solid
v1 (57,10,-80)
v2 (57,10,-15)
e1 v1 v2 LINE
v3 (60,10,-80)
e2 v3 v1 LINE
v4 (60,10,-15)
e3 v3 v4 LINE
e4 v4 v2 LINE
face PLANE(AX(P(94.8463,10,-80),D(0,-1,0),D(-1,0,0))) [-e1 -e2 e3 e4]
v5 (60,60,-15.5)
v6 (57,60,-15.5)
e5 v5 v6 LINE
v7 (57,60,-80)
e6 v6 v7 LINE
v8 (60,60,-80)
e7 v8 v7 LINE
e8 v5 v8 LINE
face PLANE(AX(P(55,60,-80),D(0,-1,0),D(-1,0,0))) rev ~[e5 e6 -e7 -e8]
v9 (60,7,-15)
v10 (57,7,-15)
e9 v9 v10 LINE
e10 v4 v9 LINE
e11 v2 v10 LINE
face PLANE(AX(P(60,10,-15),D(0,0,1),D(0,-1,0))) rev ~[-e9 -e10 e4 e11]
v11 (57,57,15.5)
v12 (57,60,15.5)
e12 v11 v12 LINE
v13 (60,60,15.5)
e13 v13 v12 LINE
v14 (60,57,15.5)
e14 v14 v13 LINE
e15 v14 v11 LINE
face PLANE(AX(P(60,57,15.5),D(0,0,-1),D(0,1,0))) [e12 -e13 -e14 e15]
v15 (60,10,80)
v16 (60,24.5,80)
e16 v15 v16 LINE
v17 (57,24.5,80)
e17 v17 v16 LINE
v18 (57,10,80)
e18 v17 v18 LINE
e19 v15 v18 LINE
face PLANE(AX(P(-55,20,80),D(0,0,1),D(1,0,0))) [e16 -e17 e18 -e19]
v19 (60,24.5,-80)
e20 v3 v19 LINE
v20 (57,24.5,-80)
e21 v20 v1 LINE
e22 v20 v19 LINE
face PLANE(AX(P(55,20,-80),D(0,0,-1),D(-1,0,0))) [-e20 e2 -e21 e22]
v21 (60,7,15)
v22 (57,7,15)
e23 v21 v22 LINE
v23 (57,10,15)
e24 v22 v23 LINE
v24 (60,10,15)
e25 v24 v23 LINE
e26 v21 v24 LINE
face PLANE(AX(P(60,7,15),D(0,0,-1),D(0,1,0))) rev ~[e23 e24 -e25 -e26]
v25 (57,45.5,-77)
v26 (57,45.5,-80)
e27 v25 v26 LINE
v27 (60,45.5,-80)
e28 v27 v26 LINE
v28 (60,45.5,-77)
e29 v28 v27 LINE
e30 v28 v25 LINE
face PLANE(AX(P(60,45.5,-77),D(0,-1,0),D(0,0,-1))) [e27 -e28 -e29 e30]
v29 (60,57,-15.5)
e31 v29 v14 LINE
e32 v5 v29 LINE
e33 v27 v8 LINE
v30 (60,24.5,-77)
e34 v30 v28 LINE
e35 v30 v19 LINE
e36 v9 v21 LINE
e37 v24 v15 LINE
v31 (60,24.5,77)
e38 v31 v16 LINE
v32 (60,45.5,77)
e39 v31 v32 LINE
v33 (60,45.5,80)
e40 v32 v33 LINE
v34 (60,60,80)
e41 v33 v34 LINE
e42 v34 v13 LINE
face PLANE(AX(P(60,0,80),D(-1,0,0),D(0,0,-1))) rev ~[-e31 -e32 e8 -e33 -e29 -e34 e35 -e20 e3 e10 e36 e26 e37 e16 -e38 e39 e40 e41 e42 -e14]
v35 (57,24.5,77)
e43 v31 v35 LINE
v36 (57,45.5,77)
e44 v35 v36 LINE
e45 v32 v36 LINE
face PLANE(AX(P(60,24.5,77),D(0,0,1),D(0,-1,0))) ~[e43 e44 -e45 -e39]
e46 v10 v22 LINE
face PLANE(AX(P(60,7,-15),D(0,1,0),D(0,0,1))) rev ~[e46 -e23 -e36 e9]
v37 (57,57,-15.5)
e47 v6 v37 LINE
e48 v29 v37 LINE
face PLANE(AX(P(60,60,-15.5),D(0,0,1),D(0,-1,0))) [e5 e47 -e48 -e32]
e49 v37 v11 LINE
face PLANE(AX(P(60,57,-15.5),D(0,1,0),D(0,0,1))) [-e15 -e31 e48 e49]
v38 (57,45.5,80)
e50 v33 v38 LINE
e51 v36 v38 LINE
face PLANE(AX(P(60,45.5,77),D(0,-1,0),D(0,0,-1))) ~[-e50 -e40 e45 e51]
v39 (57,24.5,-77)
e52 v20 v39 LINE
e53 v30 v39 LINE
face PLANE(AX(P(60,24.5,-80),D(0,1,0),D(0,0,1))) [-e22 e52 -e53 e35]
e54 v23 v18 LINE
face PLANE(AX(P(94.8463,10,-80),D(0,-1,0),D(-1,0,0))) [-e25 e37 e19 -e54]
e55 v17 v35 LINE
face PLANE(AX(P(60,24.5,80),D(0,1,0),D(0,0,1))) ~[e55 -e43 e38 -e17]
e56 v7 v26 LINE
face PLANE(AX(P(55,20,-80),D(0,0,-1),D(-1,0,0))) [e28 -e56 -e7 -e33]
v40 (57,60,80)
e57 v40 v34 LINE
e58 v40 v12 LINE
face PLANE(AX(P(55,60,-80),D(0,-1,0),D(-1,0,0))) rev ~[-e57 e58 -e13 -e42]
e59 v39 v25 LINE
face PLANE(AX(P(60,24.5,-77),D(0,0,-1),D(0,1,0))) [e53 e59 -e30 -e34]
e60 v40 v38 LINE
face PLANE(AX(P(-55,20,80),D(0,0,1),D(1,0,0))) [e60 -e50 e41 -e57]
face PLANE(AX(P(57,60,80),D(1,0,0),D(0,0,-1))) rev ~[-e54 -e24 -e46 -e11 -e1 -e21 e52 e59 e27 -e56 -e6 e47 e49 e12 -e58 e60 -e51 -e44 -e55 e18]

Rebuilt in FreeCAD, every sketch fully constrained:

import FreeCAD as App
import Part
import Sketcher
Q = App.Units.Quantity

doc = App.newDocument("Part")
body = doc.addObject("PartDesign::Body", "Body")

sketch1 = doc.addObject("Sketcher::SketchObject", "Sketch")
body.addObject(sketch1)
sketch1.AttachmentSupport = (doc.XZ_Plane, [""])
sketch1.MapMode = "FlatFace"
sketch1.addGeometry([
    Part.LineSegment(App.Vector(-60, -80, 0), App.Vector(-60, 80, 0)),
    Part.LineSegment(App.Vector(-60, 80, 0), App.Vector(60, 80, 0)),
    Part.LineSegment(App.Vector(60, 80, 0), App.Vector(60, -80, 0)),
    Part.LineSegment(App.Vector(60, -80, 0), App.Vector(-60, -80, 0)),
], False)
sketch1.addConstraint([
    Sketcher.Constraint("Coincident", 0, 2, 1, 1),
    Sketcher.Constraint("Coincident", 1, 2, 2, 1),
    Sketcher.Constraint("Coincident", 2, 2, 3, 1),
    Sketcher.Constraint("Coincident", 3, 2, 0, 1),
    Sketcher.Constraint("Vertical", 0),
    Sketcher.Constraint("Horizontal", 1),
    Sketcher.Constraint("Vertical", 2),
    Sketcher.Constraint("Horizontal", 3),
    Sketcher.Constraint("Symmetric", 0, 2, 2, 2, -1, 1),
    Sketcher.Constraint("DistanceX", 1, 1, 1, 2, Q("120 mm")),
    Sketcher.Constraint("DistanceY", 0, 1, 0, 2, Q("160 mm")),
])
pad1 = doc.addObject("PartDesign::Pad", "Pad")
body.addObject(pad1)
pad1.Profile = sketch1
pad1.Length = 60
pad1.Reversed = True

sketch2 = doc.addObject("Sketcher::SketchObject", "Sketch001")
body.addObject(sketch2)
sketch2.AttachmentSupport = (doc.XZ_Plane, [""])
sketch2.MapMode = "FlatFace"
sketch2.AttachmentOffset = App.Placement(App.Vector(0, 0, -60), App.Rotation())
sketch2.addGeometry([
    Part.LineSegment(App.Vector(55, 90, 0), App.Vector(55, -80, 0)),
    Part.LineSegment(App.Vector(55, -80, 0), App.Vector(-55, -80, 0)),
    Part.LineSegment(App.Vector(-55, -80, 0), App.Vector(-55, 90, 0)),
    Part.LineSegment(App.Vector(-55, 90, 0), App.Vector(55, 90, 0)),
], False)
sketch2.addConstraint([
    Sketcher.Constraint("Coincident", 0, 2, 1, 1),
    Sketcher.Constraint("Coincident", 1, 2, 2, 1),
    Sketcher.Constraint("Coincident", 2, 2, 3, 1),
    Sketcher.Constraint("Coincident", 3, 2, 0, 1),
    Sketcher.Constraint("Vertical", 0),
    Sketcher.Constraint("Horizontal", 1),
    Sketcher.Constraint("Vertical", 2),
    Sketcher.Constraint("Horizontal", 3),
    Sketcher.Constraint("DistanceX", 1, 2, 1, 1, Q("110 mm")),
    Sketcher.Constraint("DistanceX", -1, 1, 0, 2, Q("55 mm")),
    Sketcher.Constraint("DistanceY", 0, 2, -1, 1, Q("80 mm")),
    Sketcher.Constraint("DistanceY", 0, 2, 0, 1, Q("169.711 mm")),
])
pocket1 = doc.addObject("PartDesign::Pocket", "Pocket")
body.addObject(pocket1)
pocket1.Profile = sketch2
pocket1.Length = 40
pocket1.Reversed = True

sketch3 = doc.addObject("Sketcher::SketchObject", "Sketch002")
body.addObject(sketch3)
sketch3.AttachmentSupport = (doc.XY_Plane, [""])
sketch3.MapMode = "FlatFace"
sketch3.AttachmentOffset = App.Placement(App.Vector(0, 0, -80), App.Rotation())
sketch3.addGeometry([
    Part.LineSegment(App.Vector(-96, 10, 0), App.Vector(95, 10, 0)),
    Part.LineSegment(App.Vector(95, 10, 0), App.Vector(95, -37, 0)),
    Part.LineSegment(App.Vector(95, -37, 0), App.Vector(-96, -37, 0)),
    Part.LineSegment(App.Vector(-96, -37, 0), App.Vector(-96, 10, 0)),
], False)
sketch3.addConstraint([
    Sketcher.Constraint("Coincident", 0, 2, 1, 1),
    Sketcher.Constraint("Coincident", 1, 2, 2, 1),
    Sketcher.Constraint("Coincident", 2, 2, 3, 1),
    Sketcher.Constraint("Coincident", 3, 2, 0, 1),
    Sketcher.Constraint("Horizontal", 0),
    Sketcher.Constraint("Vertical", 1),
    Sketcher.Constraint("Horizontal", 2),
    Sketcher.Constraint("Vertical", 3),
    Sketcher.Constraint("DistanceY", -1, 1, 0, 2, Q("10 mm")),
    Sketcher.Constraint("DistanceX", 0, 1, 0, 2, Q("191.1097 mm")),
    Sketcher.Constraint("DistanceY", 1, 2, 1, 1, Q("46.9465 mm")),
    Sketcher.Constraint("DistanceX", -1, 1, 0, 2, Q("94.8463 mm")),
])
pocket2 = doc.addObject("PartDesign::Pocket", "Pocket001")
body.addObject(pocket2)
pocket2.Profile = sketch3
pocket2.Type = "ThroughAll"
pocket2.Reversed = True

sketch4 = doc.addObject("Sketcher::SketchObject", "Sketch003")
body.addObject(sketch4)
sketch4.AttachmentSupport = (doc.XY_Plane, [""])
sketch4.MapMode = "FlatFace"
sketch4.AttachmentOffset = App.Placement(App.Vector(0, 0, 80), App.Rotation())
sketch4.addGeometry([
    Part.LineSegment(App.Vector(55, 60, 0), App.Vector(-55, 60, 0)),
    Part.LineSegment(App.Vector(-55, 60, 0), App.Vector(-55, 20, 0)),
    Part.LineSegment(App.Vector(-55, 20, 0), App.Vector(55, 20, 0)),
    Part.LineSegment(App.Vector(55, 20, 0), App.Vector(55, 60, 0)),
], False)
sketch4.addConstraint([
    Sketcher.Constraint("Coincident", 0, 2, 1, 1),
    Sketcher.Constraint("Coincident", 1, 2, 2, 1),
    Sketcher.Constraint("Coincident", 2, 2, 3, 1),
    Sketcher.Constraint("Coincident", 3, 2, 0, 1),
    Sketcher.Constraint("Horizontal", 0),
    Sketcher.Constraint("Vertical", 1),
    Sketcher.Constraint("Horizontal", 2),
    Sketcher.Constraint("Vertical", 3),
    Sketcher.Constraint("DistanceX", 0, 2, 0, 1, Q("110 mm")),
    Sketcher.Constraint("DistanceY", 1, 2, 1, 1, Q("40 mm")),
    Sketcher.Constraint("DistanceX", 0, 2, -1, 1, Q("55 mm")),
    Sketcher.Constraint("DistanceY", -1, 1, 0, 2, Q("60 mm")),
])
pad2 = doc.addObject("PartDesign::Pad", "Pad001")
body.addObject(pad2)
pad2.Profile = sketch4
pad2.Length = 5
pad2.Reversed = True

sketch5 = doc.addObject("Sketcher::SketchObject", "Sketch004")
body.addObject(sketch5)
sketch5.AttachmentSupport = (doc.XY_Plane, [""])
sketch5.MapMode = "FlatFace"
sketch5.AttachmentOffset = App.Placement(App.Vector(0, 0, -80), App.Rotation())
sketch5.addGeometry([
    Part.LineSegment(App.Vector(55, 60, 0), App.Vector(55, 20, 0)),
    Part.LineSegment(App.Vector(55, 20, 0), App.Vector(-55, 20, 0)),
    Part.LineSegment(App.Vector(-55, 20, 0), App.Vector(-55, 60, 0)),
    Part.LineSegment(App.Vector(-55, 60, 0), App.Vector(55, 60, 0)),
], False)
sketch5.addConstraint([
    Sketcher.Constraint("Coincident", 0, 2, 1, 1),
    Sketcher.Constraint("Coincident", 1, 2, 2, 1),
    Sketcher.Constraint("Coincident", 2, 2, 3, 1),
    Sketcher.Constraint("Coincident", 3, 2, 0, 1),
    Sketcher.Constraint("Vertical", 0),
    Sketcher.Constraint("Horizontal", 1),
    Sketcher.Constraint("Vertical", 2),
    Sketcher.Constraint("Horizontal", 3),
    Sketcher.Constraint("DistanceX", 1, 2, 1, 1, Q("110 mm")),
    Sketcher.Constraint("DistanceY", 0, 2, 0, 1, Q("40 mm")),
    Sketcher.Constraint("DistanceX", -1, 1, 0, 2, Q("55 mm")),
    Sketcher.Constraint("DistanceY", -1, 1, 0, 2, Q("20 mm")),
])
pad3 = doc.addObject("PartDesign::Pad", "Pad002")
body.addObject(pad3)
pad3.Profile = sketch5
pad3.Length = 5

sketch6 = doc.addObject("Sketcher::SketchObject", "Sketch005")
body.addObject(sketch6)
sketch6.AttachmentSupport = (doc.XZ_Plane, [""])
sketch6.MapMode = "FlatFace"
sketch6.AttachmentOffset = App.Placement(App.Vector(0, 0, -20), App.Rotation())
sketch6.addGeometry([
    Part.Circle(App.Vector(7, -27, 0), App.Vector(0, 0, 1), 1.6),
    Part.Circle(App.Vector(45, -27, 0), App.Vector(0, 0, 1), 1.6),
    Part.Circle(App.Vector(7, -65, 0), App.Vector(0, 0, 1), 1.6),
    Part.Circle(App.Vector(45, -65, 0), App.Vector(0, 0, 1), 1.6),
], False)
sketch6.addConstraint([
    Sketcher.Constraint("Equal", 0, 1),
    Sketcher.Constraint("Equal", 1, 2),
    Sketcher.Constraint("Equal", 2, 3),
    Sketcher.Constraint("Horizontal", 0, 3, 1, 3),
    Sketcher.Constraint("Horizontal", 2, 3, 3, 3),
    Sketcher.Constraint("Vertical", 0, 3, 2, 3),
    Sketcher.Constraint("Vertical", 1, 3, 3, 3),
    Sketcher.Constraint("Diameter", 0, Q("3.2 mm")),
    Sketcher.Constraint("DistanceX", 0, 3, 1, 3, Q("38 mm")),
    Sketcher.Constraint("DistanceY", 2, 3, 0, 3, Q("38 mm")),
    Sketcher.Constraint("DistanceX", -1, 1, 0, 3, Q("7 mm")),
    Sketcher.Constraint("DistanceY", 0, 3, -1, 1, Q("27 mm")),
])
pocket3 = doc.addObject("PartDesign::Pocket", "Pocket002")
body.addObject(pocket3)
pocket3.Profile = sketch6
pocket3.Type = "ThroughAll"
pocket3.Reversed = True

sketch7 = doc.addObject("Sketcher::SketchObject", "Sketch006")
body.addObject(sketch7)
sketch7.AttachmentSupport = (doc.XY_Plane, [""])
sketch7.MapMode = "FlatFace"
sketch7.AttachmentOffset = App.Placement(App.Vector(0, 0, -80), App.Rotation())
sketch7.addGeometry([
    Part.Circle(App.Vector(14, 35, 0), App.Vector(0, 0, 1), 8),
    Part.Circle(App.Vector(-14, 35, 0), App.Vector(0, 0, 1), 8),
], False)
sketch7.addConstraint([
    Sketcher.Constraint("Equal", 0, 1),
    Sketcher.Constraint("Symmetric", 0, 3, 1, 3, -2),
    Sketcher.Constraint("Diameter", 0, Q("17 mm")),
    Sketcher.Constraint("DistanceX", 1, 3, 0, 3, Q("27 mm")),
    Sketcher.Constraint("DistanceY", -1, 1, 0, 3, Q("35 mm")),
])
pocket4 = doc.addObject("PartDesign::Pocket", "Pocket003")
body.addObject(pocket4)
pocket4.Profile = sketch7
pocket4.Type = "ThroughAll"
pocket4.Reversed = True

sketch8 = doc.addObject("Sketcher::SketchObject", "Sketch007")
body.addObject(sketch8)
sketch8.AttachmentSupport = (doc.XZ_Plane, [""])
sketch8.MapMode = "FlatFace"
sketch8.AttachmentOffset = App.Placement(App.Vector(0, 0, -20), App.Rotation())
sketch8.addGeometry(Part.Circle(App.Vector(5, -8, 0), App.Vector(0, 0, 1), 8), False)
sketch8.addConstraint([
    Sketcher.Constraint("Diameter", 0, Q("15 mm")),
    Sketcher.Constraint("DistanceX", -1, 1, 0, 3, Q("5.4243 mm")),
    Sketcher.Constraint("DistanceY", 0, 3, -1, 1, Q("8.1678 mm")),
])
pocket5 = doc.addObject("PartDesign::Pocket", "Pocket004")
body.addObject(pocket5)
pocket5.Profile = sketch8
pocket5.Type = "ThroughAll"
pocket5.Reversed = True

sketch9 = doc.addObject("Sketcher::SketchObject", "Sketch008")
body.addObject(sketch9)
sketch9.AttachmentSupport = (doc.XZ_Plane, [""])
sketch9.MapMode = "FlatFace"
sketch9.AttachmentOffset = App.Placement(App.Vector(0, 0, -20), App.Rotation())
sketch9.addGeometry([
    Part.Circle(App.Vector(4.7, 62.5, 0), App.Vector(0, 0, 1), 1.6),
    Part.Circle(App.Vector(6, 14.2, 0), App.Vector(0, 0, 1), 1.6),
    Part.Circle(App.Vector(-46, 47.2, 0), App.Vector(0, 0, 1), 1.6),
    Part.Circle(App.Vector(-46, 19.2, 0), App.Vector(0, 0, 1), 1.6),
], False)
sketch9.addConstraint([
    Sketcher.Constraint("Equal", 0, 1),
    Sketcher.Constraint("Equal", 1, 2),
    Sketcher.Constraint("Equal", 2, 3),
    Sketcher.Constraint("Vertical", 2, 3, 3, 3),
    Sketcher.Constraint("Diameter", 0, Q("3.2 mm")),
    Sketcher.Constraint("DistanceX", -1, 1, 0, 3, Q("4.7 mm")),
    Sketcher.Constraint("DistanceY", 1, 3, 0, 3, Q("48.3 mm")),
    Sketcher.Constraint("DistanceY", -1, 1, 0, 3, Q("62.45 mm")),
    Sketcher.Constraint("DistanceX", -1, 1, 1, 3, Q("6.03 mm")),
    Sketcher.Constraint("DistanceX", 2, 3, -1, 1, Q("46.05 mm")),
    Sketcher.Constraint("DistanceY", -1, 1, 2, 3, Q("47.16 mm")),
    Sketcher.Constraint("DistanceY", -1, 1, 3, 3, Q("19.23 mm")),
])
pocket6 = doc.addObject("PartDesign::Pocket", "Pocket005")
body.addObject(pocket6)
pocket6.Profile = sketch9
pocket6.Type = "ThroughAll"
pocket6.Reversed = True

sketch10 = doc.addObject("Sketcher::SketchObject", "Sketch009")
body.addObject(sketch10)
sketch10.AttachmentSupport = (doc.XZ_Plane, [""])
sketch10.MapMode = "FlatFace"
sketch10.AttachmentOffset = App.Placement(App.Vector(0, 0, -20), App.Rotation())
sketch10.addGeometry([
    Part.LineSegment(App.Vector(-55, -75, 0), App.Vector(-55, 75, 0)),
    Part.LineSegment(App.Vector(-55, 75, 0), App.Vector(55, 75, 0)),
    Part.LineSegment(App.Vector(55, 75, 0), App.Vector(55, -75, 0)),
    Part.LineSegment(App.Vector(55, -75, 0), App.Vector(-55, -75, 0)),
], False)
sketch10.addConstraint([
    Sketcher.Constraint("Coincident", 0, 2, 1, 1),
    Sketcher.Constraint("Coincident", 1, 2, 2, 1),
    Sketcher.Constraint("Coincident", 2, 2, 3, 1),
    Sketcher.Constraint("Coincident", 3, 2, 0, 1),
    Sketcher.Constraint("Vertical", 0),
    Sketcher.Constraint("Horizontal", 1),
    Sketcher.Constraint("Vertical", 2),
    Sketcher.Constraint("Horizontal", 3),
    Sketcher.Constraint("Symmetric", 0, 2, 2, 2, -1, 1),
    Sketcher.Constraint("DistanceX", 1, 1, 1, 2, Q("110 mm")),
    Sketcher.Constraint("DistanceY", 0, 1, 0, 2, Q("150 mm")),
])
pocket7 = doc.addObject("PartDesign::Pocket", "Pocket006")
body.addObject(pocket7)
pocket7.Profile = sketch10
pocket7.Type = "ThroughAll"
pocket7.Reversed = True

sketch11 = doc.addObject("Sketcher::SketchObject", "Sketch010")
body.addObject(sketch11)
sketch11.AttachmentSupport = (doc.XZ_Plane, [""])
sketch11.MapMode = "FlatFace"
sketch11.AttachmentOffset = App.Placement(App.Vector(0, 0, -60), App.Rotation())
sketch11.addGeometry([
    Part.LineSegment(App.Vector(-60, -80, 0), App.Vector(-60, 80, 0)),
    Part.LineSegment(App.Vector(-60, 80, 0), App.Vector(57, 80, 0)),
    Part.LineSegment(App.Vector(57, 80, 0), App.Vector(57, -80, 0)),
    Part.LineSegment(App.Vector(57, -80, 0), App.Vector(-60, -80, 0)),
], False)
sketch11.addConstraint([
    Sketcher.Constraint("Coincident", 0, 2, 1, 1),
    Sketcher.Constraint("Coincident", 1, 2, 2, 1),
    Sketcher.Constraint("Coincident", 2, 2, 3, 1),
    Sketcher.Constraint("Coincident", 3, 2, 0, 1),
    Sketcher.Constraint("Vertical", 0),
    Sketcher.Constraint("Horizontal", 1),
    Sketcher.Constraint("Vertical", 2),
    Sketcher.Constraint("Horizontal", 3),
    Sketcher.Constraint("DistanceX", 1, 1, 1, 2, Q("117 mm")),
    Sketcher.Constraint("DistanceY", 0, 1, 0, 2, Q("160 mm")),
    Sketcher.Constraint("DistanceX", 0, 2, -1, 1, Q("60 mm")),
    Sketcher.Constraint("DistanceY", -1, 1, 0, 2, Q("80 mm")),
])
pocket8 = doc.addObject("PartDesign::Pocket", "Pocket007")
body.addObject(pocket8)
pocket8.Profile = sketch11
pocket8.Type = "ThroughAll"
pocket8.Reversed = True

sketch12 = doc.addObject("Sketcher::SketchObject", "Sketch011")
body.addObject(sketch12)
sketch12.AttachmentSupport = (doc.YZ_Plane, [""])
sketch12.MapMode = "FlatFace"
sketch12.AttachmentOffset = App.Placement(App.Vector(0, 0, 60), App.Rotation())
sketch12.addGeometry([
    Part.LineSegment(App.Vector(60, -15.5, 0), App.Vector(60, 15.5, 0)),
    Part.LineSegment(App.Vector(60, 15.5, 0), App.Vector(57, 15.5, 0)),
    Part.LineSegment(App.Vector(57, 15.5, 0), App.Vector(57, -15.5, 0)),
    Part.LineSegment(App.Vector(57, -15.5, 0), App.Vector(60, -15.5, 0)),
], False)
sketch12.addConstraint([
    Sketcher.Constraint("Coincident", 0, 2, 1, 1),
    Sketcher.Constraint("Coincident", 1, 2, 2, 1),
    Sketcher.Constraint("Coincident", 2, 2, 3, 1),
    Sketcher.Constraint("Coincident", 3, 2, 0, 1),
    Sketcher.Constraint("Vertical", 0),
    Sketcher.Constraint("Horizontal", 1),
    Sketcher.Constraint("Vertical", 2),
    Sketcher.Constraint("Horizontal", 3),
    Sketcher.Constraint("DistanceX", 1, 2, 1, 1, Q("3 mm")),
    Sketcher.Constraint("DistanceY", 0, 1, 0, 2, Q("31 mm")),
    Sketcher.Constraint("DistanceX", -1, 1, 0, 2, Q("60 mm")),
    Sketcher.Constraint("DistanceY", -1, 1, 0, 2, Q("15.5 mm")),
])
pocket9 = doc.addObject("PartDesign::Pocket", "Pocket008")
body.addObject(pocket9)
pocket9.Profile = sketch12
pocket9.Type = "ThroughAll"

sketch13 = doc.addObject("Sketcher::SketchObject", "Sketch012")
body.addObject(sketch13)
sketch13.AttachmentSupport = (doc.YZ_Plane, [""])
sketch13.MapMode = "FlatFace"
sketch13.AttachmentOffset = App.Placement(App.Vector(0, 0, 60), App.Rotation())
sketch13.addGeometry([
    Part.LineSegment(App.Vector(10, -15, 0), App.Vector(10, 15, 0)),
    Part.LineSegment(App.Vector(10, 15, 0), App.Vector(7, 15, 0)),
    Part.LineSegment(App.Vector(7, 15, 0), App.Vector(7, -15, 0)),
    Part.LineSegment(App.Vector(7, -15, 0), App.Vector(10, -15, 0)),
], False)
sketch13.addConstraint([
    Sketcher.Constraint("Coincident", 0, 2, 1, 1),
    Sketcher.Constraint("Coincident", 1, 2, 2, 1),
    Sketcher.Constraint("Coincident", 2, 2, 3, 1),
    Sketcher.Constraint("Coincident", 3, 2, 0, 1),
    Sketcher.Constraint("Vertical", 0),
    Sketcher.Constraint("Horizontal", 1),
    Sketcher.Constraint("Vertical", 2),
    Sketcher.Constraint("Horizontal", 3),
    Sketcher.Constraint("DistanceX", 1, 2, 1, 1, Q("3 mm")),
    Sketcher.Constraint("DistanceY", 0, 1, 0, 2, Q("30 mm")),
    Sketcher.Constraint("DistanceX", -1, 1, 0, 2, Q("10 mm")),
    Sketcher.Constraint("DistanceY", -1, 1, 0, 2, Q("15 mm")),
])
pad4 = doc.addObject("PartDesign::Pad", "Pad003")
body.addObject(pad4)
pad4.Profile = sketch13
pad4.Length = 3
pad4.Reversed = True

sketch14 = doc.addObject("Sketcher::SketchObject", "Sketch013")
body.addObject(sketch14)
sketch14.AttachmentSupport = (doc.YZ_Plane, [""])
sketch14.MapMode = "FlatFace"
sketch14.AttachmentOffset = App.Placement(App.Vector(0, 0, 60), App.Rotation())
sketch14.addGeometry([
    Part.LineSegment(App.Vector(46, -77, 0), App.Vector(24, -77, 0)),
    Part.LineSegment(App.Vector(24, -77, 0), App.Vector(24, -85, 0)),
    Part.LineSegment(App.Vector(24, -85, 0), App.Vector(46, -85, 0)),
    Part.LineSegment(App.Vector(46, -85, 0), App.Vector(46, -77, 0)),
], False)
sketch14.addConstraint([
    Sketcher.Constraint("Coincident", 0, 2, 1, 1),
    Sketcher.Constraint("Coincident", 1, 2, 2, 1),
    Sketcher.Constraint("Coincident", 2, 2, 3, 1),
    Sketcher.Constraint("Coincident", 3, 2, 0, 1),
    Sketcher.Constraint("Horizontal", 0),
    Sketcher.Constraint("Vertical", 1),
    Sketcher.Constraint("Horizontal", 2),
    Sketcher.Constraint("Vertical", 3),
    Sketcher.Constraint("DistanceX", 0, 2, 0, 1, Q("21 mm")),
    Sketcher.Constraint("DistanceY", 0, 2, -1, 1, Q("77 mm")),
    Sketcher.Constraint("DistanceX", -1, 1, 0, 2, Q("24.5 mm")),
    Sketcher.Constraint("DistanceY", 1, 2, 1, 1, Q("8.4106 mm")),
])
pocket10 = doc.addObject("PartDesign::Pocket", "Pocket009")
body.addObject(pocket10)
pocket10.Profile = sketch14
pocket10.Type = "ThroughAll"
doc.recompute()

mirrored = doc.addObject("PartDesign::Mirrored", "Mirrored")
body.addObject(mirrored)
mirrored.Originals = [pocket10]
mirrored.MirrorPlane = (doc.XY_Plane, [""])
body.Tip = mirrored

doc.recompute()
